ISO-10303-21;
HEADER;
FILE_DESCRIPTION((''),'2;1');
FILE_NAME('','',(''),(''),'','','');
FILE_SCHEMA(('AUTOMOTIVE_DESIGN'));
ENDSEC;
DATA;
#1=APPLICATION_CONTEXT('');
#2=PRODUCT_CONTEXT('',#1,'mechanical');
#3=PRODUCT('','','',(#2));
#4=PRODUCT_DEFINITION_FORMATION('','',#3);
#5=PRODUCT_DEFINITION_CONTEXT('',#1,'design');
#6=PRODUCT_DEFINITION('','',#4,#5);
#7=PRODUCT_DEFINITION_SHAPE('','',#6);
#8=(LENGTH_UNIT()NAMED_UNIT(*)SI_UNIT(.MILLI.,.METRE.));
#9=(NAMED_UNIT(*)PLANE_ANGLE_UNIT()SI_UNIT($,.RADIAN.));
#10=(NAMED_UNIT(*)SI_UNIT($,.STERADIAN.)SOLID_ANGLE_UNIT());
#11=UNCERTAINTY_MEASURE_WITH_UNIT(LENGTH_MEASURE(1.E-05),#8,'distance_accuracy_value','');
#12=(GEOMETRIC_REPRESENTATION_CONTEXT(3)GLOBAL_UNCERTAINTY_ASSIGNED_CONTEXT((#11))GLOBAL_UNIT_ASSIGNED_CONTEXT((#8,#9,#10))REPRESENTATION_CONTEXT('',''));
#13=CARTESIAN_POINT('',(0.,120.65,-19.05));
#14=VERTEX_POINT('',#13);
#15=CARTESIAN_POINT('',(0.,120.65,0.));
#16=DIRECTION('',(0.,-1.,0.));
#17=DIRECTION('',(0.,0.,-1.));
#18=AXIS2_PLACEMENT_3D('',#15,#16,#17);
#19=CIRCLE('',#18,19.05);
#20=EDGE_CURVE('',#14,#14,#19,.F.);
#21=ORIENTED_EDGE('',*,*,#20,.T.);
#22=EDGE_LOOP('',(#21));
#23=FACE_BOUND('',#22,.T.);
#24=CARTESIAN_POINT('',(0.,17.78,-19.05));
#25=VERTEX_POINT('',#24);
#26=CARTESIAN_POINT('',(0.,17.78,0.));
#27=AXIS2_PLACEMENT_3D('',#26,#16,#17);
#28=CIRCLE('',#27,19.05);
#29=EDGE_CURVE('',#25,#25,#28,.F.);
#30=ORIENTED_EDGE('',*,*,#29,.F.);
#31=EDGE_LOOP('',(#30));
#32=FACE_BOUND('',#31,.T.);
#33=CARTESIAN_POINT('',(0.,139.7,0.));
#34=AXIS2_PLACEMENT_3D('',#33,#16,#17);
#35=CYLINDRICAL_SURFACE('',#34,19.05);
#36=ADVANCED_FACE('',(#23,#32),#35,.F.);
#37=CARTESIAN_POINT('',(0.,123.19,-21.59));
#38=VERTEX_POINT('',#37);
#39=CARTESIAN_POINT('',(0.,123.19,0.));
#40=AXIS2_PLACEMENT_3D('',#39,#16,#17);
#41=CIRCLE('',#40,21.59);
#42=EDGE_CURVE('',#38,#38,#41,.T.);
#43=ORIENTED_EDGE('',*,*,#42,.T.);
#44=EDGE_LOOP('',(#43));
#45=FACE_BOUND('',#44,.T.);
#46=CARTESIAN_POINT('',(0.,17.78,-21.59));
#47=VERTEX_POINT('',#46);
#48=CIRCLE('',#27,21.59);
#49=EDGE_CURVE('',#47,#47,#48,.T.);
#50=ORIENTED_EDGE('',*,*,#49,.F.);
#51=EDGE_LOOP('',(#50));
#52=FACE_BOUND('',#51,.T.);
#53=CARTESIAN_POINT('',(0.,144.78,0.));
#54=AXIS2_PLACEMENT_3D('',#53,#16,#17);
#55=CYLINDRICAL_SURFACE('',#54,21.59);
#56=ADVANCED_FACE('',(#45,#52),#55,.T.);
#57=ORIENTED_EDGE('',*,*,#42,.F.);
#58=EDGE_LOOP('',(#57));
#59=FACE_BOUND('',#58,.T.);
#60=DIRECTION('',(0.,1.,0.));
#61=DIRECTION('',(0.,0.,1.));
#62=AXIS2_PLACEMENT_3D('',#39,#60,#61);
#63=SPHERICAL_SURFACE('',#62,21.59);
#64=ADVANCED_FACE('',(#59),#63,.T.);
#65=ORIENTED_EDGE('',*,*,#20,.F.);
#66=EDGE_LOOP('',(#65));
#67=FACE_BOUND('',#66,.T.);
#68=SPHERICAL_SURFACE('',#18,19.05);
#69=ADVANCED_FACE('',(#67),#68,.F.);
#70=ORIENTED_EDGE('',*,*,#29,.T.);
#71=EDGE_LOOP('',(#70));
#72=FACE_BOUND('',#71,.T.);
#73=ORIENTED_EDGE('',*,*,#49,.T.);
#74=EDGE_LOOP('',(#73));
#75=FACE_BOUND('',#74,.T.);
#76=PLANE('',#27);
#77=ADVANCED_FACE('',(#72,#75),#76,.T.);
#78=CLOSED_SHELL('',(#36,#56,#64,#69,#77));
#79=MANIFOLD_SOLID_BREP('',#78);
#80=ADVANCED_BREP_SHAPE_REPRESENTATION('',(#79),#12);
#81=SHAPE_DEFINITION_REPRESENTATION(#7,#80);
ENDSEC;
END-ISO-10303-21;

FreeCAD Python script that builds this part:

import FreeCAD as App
import Part
import Sketcher

V = App.Vector
Q = App.Units.Quantity


def edges_at(feature, points):
    """Names of the edges that pass closest to the given points."""
    edges = feature.Shape.Edges
    near = lambda p: min(range(len(edges)), key=lambda i: edges[i].distToShape(Part.Vertex(*p))[0])
    return sorted({f"Edge{near(p) + 1}" for p in points})

doc = App.newDocument("Part")
params = doc.addObject("Spreadsheet::Sheet", "Params")
for row, (alias, value) in enumerate([
    ("sketch1_diameter", "1.7 in"),
    ("pad1_length", "5.7 in"),
    ("sketch2_diameter", "1.5 in"),
    ("pocket1_length", "5.5 in"),
    ("fillet_radius", "0.85 in"),
    ("fillet2_radius", "0.75 in"),
    ("sketch3_diameter", "1.7 in"),
    ("pocket2_length", "0.7 in"),
], start=1):
    params.set(f"A{row}", alias)
    params.set(f"B{row}", "=" + value)
    params.setAlias(f"B{row}", alias)

body = doc.addObject("PartDesign::Body", "Body")

# Sketch on XZ plane
sketch1 = body.newObject("Sketcher::SketchObject", "Sketch")
sketch1.AttachmentSupport = (doc.getObject("XZ_Plane"), [""])
sketch1.MapMode = "FlatFace"
sketch1.addGeometry(Part.Circle(V(0, 0, 0), V(0, 0, 1), 22), False)
sketch1.addConstraint([
    Sketcher.Constraint("Coincident", 0, 3, -1, 1),
    Sketcher.Constraint("Diameter", 0, Q("1.7 in")),
])
sketch1.setExpression("Constraints[1]", "Params.sketch1_diameter")
pad1 = body.newObject("PartDesign::Pad", "Pad")
pad1.Profile = sketch1
pad1.setExpression("Length", "Params.pad1_length")
pad1.Reversed = True

# Sketch on XZ plane
sketch2 = body.newObject("Sketcher::SketchObject", "Sketch001")
sketch2.AttachmentSupport = (doc.getObject("XZ_Plane"), [""])
sketch2.MapMode = "FlatFace"
sketch2.addGeometry(Part.Circle(V(0, 0, 0), V(0, 0, 1), 19), False)
sketch2.addConstraint([
    Sketcher.Constraint("Coincident", 0, 3, -1, 1),
    Sketcher.Constraint("Diameter", 0, Q("1.5 in")),
])
sketch2.setExpression("Constraints[1]", "Params.sketch2_diameter")
pocket1 = body.newObject("PartDesign::Pocket", "Pocket")
pocket1.Profile = sketch2
pocket1.setExpression("Length", "Params.pocket1_length")
doc.recompute()

fillet = body.newObject("PartDesign::Fillet", "Fillet")
fillet.Base = (pocket1, edges_at(pocket1, [(-21.59, 144.78, 0)]))
fillet.setExpression("Radius", "Params.fillet_radius")
doc.recompute()

fillet2 = body.newObject("PartDesign::Fillet", "Fillet001")
fillet2.Base = (fillet, edges_at(fillet, [(-19.05, 139.7, 0)]))
fillet2.setExpression("Radius", "Params.fillet2_radius")

# Sketch on XZ plane
sketch3 = body.newObject("Sketcher::SketchObject", "Sketch002")
sketch3.AttachmentSupport = (doc.getObject("XZ_Plane"), [""])
sketch3.MapMode = "FlatFace"
sketch3.addGeometry(Part.Circle(V(0, 0, 0), V(0, 0, 1), 22), False)
sketch3.addConstraint([
    Sketcher.Constraint("Coincident", 0, 3, -1, 1),
    Sketcher.Constraint("Diameter", 0, Q("1.7 in")),
])
sketch3.setExpression("Constraints[1]", "Params.sketch3_diameter")
pocket2 = body.newObject("PartDesign::Pocket", "Pocket001")
pocket2.Profile = sketch3
pocket2.setExpression("Length", "Params.pocket2_length")

doc.recompute()
